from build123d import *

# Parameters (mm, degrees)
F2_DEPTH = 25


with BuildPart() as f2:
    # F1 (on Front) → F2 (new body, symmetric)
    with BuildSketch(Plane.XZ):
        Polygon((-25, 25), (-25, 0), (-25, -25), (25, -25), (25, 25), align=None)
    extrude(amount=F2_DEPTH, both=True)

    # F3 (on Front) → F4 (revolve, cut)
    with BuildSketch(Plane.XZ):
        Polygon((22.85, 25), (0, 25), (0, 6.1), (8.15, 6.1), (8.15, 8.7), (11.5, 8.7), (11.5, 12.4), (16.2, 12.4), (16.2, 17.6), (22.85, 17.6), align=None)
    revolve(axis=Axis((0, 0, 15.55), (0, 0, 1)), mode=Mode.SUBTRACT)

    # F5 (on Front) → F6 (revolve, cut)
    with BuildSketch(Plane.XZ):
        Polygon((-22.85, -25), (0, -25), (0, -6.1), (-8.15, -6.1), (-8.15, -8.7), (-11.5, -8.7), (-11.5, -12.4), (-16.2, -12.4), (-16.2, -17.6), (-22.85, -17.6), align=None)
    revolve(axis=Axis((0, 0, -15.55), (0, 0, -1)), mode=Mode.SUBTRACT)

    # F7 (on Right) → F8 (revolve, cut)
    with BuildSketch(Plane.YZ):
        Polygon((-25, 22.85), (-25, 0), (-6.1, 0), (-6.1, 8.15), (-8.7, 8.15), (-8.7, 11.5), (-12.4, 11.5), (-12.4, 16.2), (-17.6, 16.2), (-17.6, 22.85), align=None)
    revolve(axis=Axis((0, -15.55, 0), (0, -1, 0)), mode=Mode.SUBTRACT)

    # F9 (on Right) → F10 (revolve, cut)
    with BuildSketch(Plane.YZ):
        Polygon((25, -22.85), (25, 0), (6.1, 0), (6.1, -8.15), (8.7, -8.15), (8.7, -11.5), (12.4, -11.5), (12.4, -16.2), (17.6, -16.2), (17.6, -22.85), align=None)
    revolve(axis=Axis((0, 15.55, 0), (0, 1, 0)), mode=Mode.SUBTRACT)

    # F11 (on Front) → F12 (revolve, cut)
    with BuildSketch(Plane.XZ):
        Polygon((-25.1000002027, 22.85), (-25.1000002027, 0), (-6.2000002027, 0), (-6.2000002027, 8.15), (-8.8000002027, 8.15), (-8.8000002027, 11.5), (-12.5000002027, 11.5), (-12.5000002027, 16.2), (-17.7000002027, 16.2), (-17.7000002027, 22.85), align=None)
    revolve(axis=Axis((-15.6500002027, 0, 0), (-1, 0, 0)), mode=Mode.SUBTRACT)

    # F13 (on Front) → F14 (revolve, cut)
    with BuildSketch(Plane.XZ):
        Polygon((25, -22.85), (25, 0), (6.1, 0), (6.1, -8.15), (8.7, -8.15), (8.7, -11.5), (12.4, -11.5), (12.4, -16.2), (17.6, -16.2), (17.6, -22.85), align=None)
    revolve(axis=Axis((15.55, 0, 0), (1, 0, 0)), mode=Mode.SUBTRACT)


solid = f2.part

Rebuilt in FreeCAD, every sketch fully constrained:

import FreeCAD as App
import Part
import Sketcher

V = App.Vector

doc = App.newDocument("Part")
params = doc.addObject("Spreadsheet::Sheet", "Params")
for row, (alias, value) in enumerate([
    ("sketch1_width", "50 mm"),
    ("pad1_length", "50 mm"),
    ("sketch2_width", "4.7 mm"),
    ("sketch2_height", "18.9 mm"),
    ("sketch2_height2", "2.6 mm"),
    ("sketch2_height3", "3.7 mm"),
    ("sketch2_height4", "5.2 mm"),
    ("groove_angle", "360 deg"),
    ("sketch3_width", "4.7 mm"),
    ("sketch3_height", "18.9 mm"),
    ("sketch3_height2", "2.6 mm"),
    ("sketch3_height3", "3.7 mm"),
    ("sketch3_height4", "5.2 mm"),
    ("groove2_angle", "360 deg"),
    ("sketch4_width", "18.9 mm"),
    ("sketch4_width2", "2.6 mm"),
    ("sketch4_width3", "3.7 mm"),
    ("sketch4_width4", "5.2 mm"),
    ("sketch4_height", "4.7 mm"),
    ("groove3_angle", "360 deg"),
    ("sketch5_width", "18.9 mm"),
    ("sketch5_width2", "2.6 mm"),
    ("sketch5_width3", "3.7 mm"),
    ("sketch5_width4", "5.2 mm"),
    ("sketch5_height", "4.7 mm"),
    ("groove4_angle", "360 deg"),
    ("sketch6_width", "18.9 mm"),
    ("sketch6_width2", "2.6 mm"),
    ("sketch6_width3", "3.7 mm"),
    ("sketch6_width4", "5.2 mm"),
    ("sketch6_height", "4.7 mm"),
    ("groove5_angle", "360 deg"),
    ("sketch7_width", "18.9 mm"),
    ("sketch7_width2", "2.6 mm"),
    ("sketch7_width3", "3.7 mm"),
    ("sketch7_width4", "5.2 mm"),
    ("sketch7_height", "4.7 mm"),
    ("groove6_angle", "360 deg"),
], start=1):
    params.set(f"A{row}", alias)
    params.set(f"B{row}", "=" + value)
    params.setAlias(f"B{row}", alias)

body = doc.addObject("PartDesign::Body", "Body")

# Sketch on XZ plane
sketch1 = doc.addObject("Sketcher::SketchObject", "Sketch")
body.addObject(sketch1)
sketch1.AttachmentSupport = (doc.XZ_Plane, [""])
sketch1.MapMode = "FlatFace"
sketch1.addGeometry([
    Part.LineSegment(V(-25, 25, 0), V(-25, -25, 0)),
    Part.LineSegment(V(-25, -25, 0), V(25, -25, 0)),
    Part.LineSegment(V(25, -25, 0), V(25, 25, 0)),
    Part.LineSegment(V(25, 25, 0), V(-25, 25, 0)),
], False)
sketch1.addConstraint([
    Sketcher.Constraint("Coincident", 0, 2, 1, 1),
    Sketcher.Constraint("Coincident", 1, 2, 2, 1),
    Sketcher.Constraint("Coincident", 2, 2, 3, 1),
    Sketcher.Constraint("Coincident", 3, 2, 0, 1),
    Sketcher.Constraint("Vertical", 0),
    Sketcher.Constraint("Horizontal", 1),
    Sketcher.Constraint("Vertical", 2),
    Sketcher.Constraint("Horizontal", 3),
    Sketcher.Constraint("Symmetric", 0, 2, 2, 2, -1, 1),
    Sketcher.Constraint("Equal", 3, 0),
    Sketcher.Constraint("DistanceX", 1, 1, 1, 2, 50.0),
])
sketch1.setExpression("Constraints[10]", "Params.sketch1_width")
pad1 = doc.addObject("PartDesign::Pad", "Pad")
body.addObject(pad1)
pad1.Profile = sketch1
pad1.setExpression("Length", "Params.pad1_length")
pad1.Midplane = True

# Sketch on XZ plane
sketch2 = doc.addObject("Sketcher::SketchObject", "Sketch001")
body.addObject(sketch2)
sketch2.AttachmentSupport = (doc.XZ_Plane, [""])
sketch2.MapMode = "FlatFace"
sketch2.addGeometry([
    Part.LineSegment(V(22.9, 25, 0), V(0, 25, 0)),  # 0
    Part.LineSegment(V(0, 25, 0), V(0, 6.1, 0)),  # 1
    Part.LineSegment(V(0, 6.1, 0), V(8.2, 6.1, 0)),  # 2
    Part.LineSegment(V(8.2, 6.1, 0), V(8.2, 8.7, 0)),  # 3
    Part.LineSegment(V(8.2, 8.7, 0), V(11.5, 8.7, 0)),  # 4
    Part.LineSegment(V(11.5, 8.7, 0), V(11.5, 12.4, 0)),  # 5
    Part.LineSegment(V(11.5, 12.4, 0), V(16.2, 12.4, 0)),  # 6
    Part.LineSegment(V(16.2, 12.4, 0), V(16.2, 17.6, 0)),  # 7
    Part.LineSegment(V(16.2, 17.6, 0), V(22.9, 17.6, 0)),  # 8
    Part.LineSegment(V(22.9, 17.6, 0), V(22.9, 25, 0)),  # 9
], False)
sketch2.addConstraint([
    Sketcher.Constraint("Coincident", 0, 2, 1, 1),
    Sketcher.Constraint("Coincident", 1, 2, 2, 1),
    Sketcher.Constraint("Coincident", 2, 2, 3, 1),
    Sketcher.Constraint("Coincident", 3, 2, 4, 1),
    Sketcher.Constraint("Coincident", 4, 2, 5, 1),
    Sketcher.Constraint("Coincident", 5, 2, 6, 1),
    Sketcher.Constraint("Coincident", 6, 2, 7, 1),
    Sketcher.Constraint("Coincident", 7, 2, 8, 1),
    Sketcher.Constraint("Coincident", 8, 2, 9, 1),
    Sketcher.Constraint("Coincident", 9, 2, 0, 1),
    Sketcher.Constraint("Horizontal", 0),
    Sketcher.Constraint("Vertical", 1),
    Sketcher.Constraint("Horizontal", 2),
    Sketcher.Constraint("Vertical", 3),
    Sketcher.Constraint("Horizontal", 4),
    Sketcher.Constraint("Vertical", 5),
    Sketcher.Constraint("Horizontal", 6),
    Sketcher.Constraint("Vertical", 7),
    Sketcher.Constraint("Horizontal", 8),
    Sketcher.Constraint("Vertical", 9),
    Sketcher.Constraint("PointOnObject", 0, 2, -2),
    Sketcher.Constraint("DistanceX", 6, 1, 6, 2, 4.7),
    Sketcher.Constraint("DistanceY", 1, 2, 1, 1, 18.9),
    Sketcher.Constraint("DistanceY", 3, 1, 3, 2, 2.6),
    Sketcher.Constraint("DistanceY", 5, 1, 5, 2, 3.7),
    Sketcher.Constraint("DistanceY", 7, 1, 7, 2, 5.2),
    Sketcher.Constraint("DistanceY", -1, 1, 0, 2, 25.0),
    Sketcher.Constraint("DistanceX", 0, 2, 0, 1, 22.85),
    Sketcher.Constraint("DistanceX", 2, 1, 2, 2, 8.15),
    Sketcher.Constraint("DistanceX", 4, 1, 4, 2, 3.35),
])
sketch2.setExpression("Constraints[21]", "Params.sketch2_width")
sketch2.setExpression("Constraints[22]", "Params.sketch2_height")
sketch2.setExpression("Constraints[23]", "Params.sketch2_height2")
sketch2.setExpression("Constraints[24]", "Params.sketch2_height3")
sketch2.setExpression("Constraints[25]", "Params.sketch2_height4")
groove = doc.addObject("PartDesign::Groove", "Groove")
body.addObject(groove)
groove.Profile = sketch2
groove.ReferenceAxis = (sketch2, ["V_Axis"])
groove.setExpression("Angle", "Params.groove_angle")

# Sketch on XZ plane
sketch3 = doc.addObject("Sketcher::SketchObject", "Sketch002")
body.addObject(sketch3)
sketch3.AttachmentSupport = (doc.XZ_Plane, [""])
sketch3.MapMode = "FlatFace"
sketch3.addGeometry([
    Part.LineSegment(V(-22.9, -25, 0), V(0, -25, 0)),  # 0
    Part.LineSegment(V(0, -25, 0), V(0, -6.1, 0)),  # 1
    Part.LineSegment(V(0, -6.1, 0), V(-8.2, -6.1, 0)),  # 2
    Part.LineSegment(V(-8.2, -6.1, 0), V(-8.2, -8.7, 0)),  # 3
    Part.LineSegment(V(-8.2, -8.7, 0), V(-11.5, -8.7, 0)),  # 4
    Part.LineSegment(V(-11.5, -8.7, 0), V(-11.5, -12.4, 0)),  # 5
    Part.LineSegment(V(-11.5, -12.4, 0), V(-16.2, -12.4, 0)),  # 6
    Part.LineSegment(V(-16.2, -12.4, 0), V(-16.2, -17.6, 0)),  # 7
    Part.LineSegment(V(-16.2, -17.6, 0), V(-22.9, -17.6, 0)),  # 8
    Part.LineSegment(V(-22.9, -17.6, 0), V(-22.9, -25, 0)),  # 9
], False)
sketch3.addConstraint([
    Sketcher.Constraint("Coincident", 0, 2, 1, 1),
    Sketcher.Constraint("Coincident", 1, 2, 2, 1),
    Sketcher.Constraint("Coincident", 2, 2, 3, 1),
    Sketcher.Constraint("Coincident", 3, 2, 4, 1),
    Sketcher.Constraint("Coincident", 4, 2, 5, 1),
    Sketcher.Constraint("Coincident", 5, 2, 6, 1),
    Sketcher.Constraint("Coincident", 6, 2, 7, 1),
    Sketcher.Constraint("Coincident", 7, 2, 8, 1),
    Sketcher.Constraint("Coincident", 8, 2, 9, 1),
    Sketcher.Constraint("Coincident", 9, 2, 0, 1),
    Sketcher.Constraint("Horizontal", 0),
    Sketcher.Constraint("Vertical", 1),
    Sketcher.Constraint("Horizontal", 2),
    Sketcher.Constraint("Vertical", 3),
    Sketcher.Constraint("Horizontal", 4),
    Sketcher.Constraint("Vertical", 5),
    Sketcher.Constraint("Horizontal", 6),
    Sketcher.Constraint("Vertical", 7),
    Sketcher.Constraint("Horizontal", 8),
    Sketcher.Constraint("Vertical", 9),
    Sketcher.Constraint("PointOnObject", 0, 2, -2),
    Sketcher.Constraint("DistanceX", 6, 2, 6, 1, 4.7),
    Sketcher.Constraint("DistanceY", 1, 1, 1, 2, 18.9),
    Sketcher.Constraint("DistanceY", 3, 2, 3, 1, 2.6),
    Sketcher.Constraint("DistanceY", 5, 2, 5, 1, 3.7),
    Sketcher.Constraint("DistanceY", 7, 2, 7, 1, 5.2),
    Sketcher.Constraint("DistanceY", 0, 2, -1, 1, 25.0),
    Sketcher.Constraint("DistanceX", 0, 1, 0, 2, 22.85),
    Sketcher.Constraint("DistanceX", 2, 2, 2, 1, 8.15),
    Sketcher.Constraint("DistanceX", 4, 2, 4, 1, 3.35),
])
sketch3.setExpression("Constraints[21]", "Params.sketch3_width")
sketch3.setExpression("Constraints[22]", "Params.sketch3_height")
sketch3.setExpression("Constraints[23]", "Params.sketch3_height2")
sketch3.setExpression("Constraints[24]", "Params.sketch3_height3")
sketch3.setExpression("Constraints[25]", "Params.sketch3_height4")
groove2 = doc.addObject("PartDesign::Groove", "Groove001")
body.addObject(groove2)
groove2.Profile = sketch3
groove2.ReferenceAxis = (sketch3, ["V_Axis"])
groove2.setExpression("Angle", "Params.groove2_angle")

# Sketch on YZ plane
sketch4 = doc.addObject("Sketcher::SketchObject", "Sketch003")
body.addObject(sketch4)
sketch4.AttachmentSupport = (doc.YZ_Plane, [""])
sketch4.MapMode = "FlatFace"
sketch4.addGeometry([
    Part.LineSegment(V(-25, 22.9, 0), V(-25, 0, 0)),  # 0
    Part.LineSegment(V(-25, 0, 0), V(-6.1, 0, 0)),  # 1
    Part.LineSegment(V(-6.1, 0, 0), V(-6.1, 8.2, 0)),  # 2
    Part.LineSegment(V(-6.1, 8.2, 0), V(-8.7, 8.2, 0)),  # 3
    Part.LineSegment(V(-8.7, 8.2, 0), V(-8.7, 11.5, 0)),  # 4
    Part.LineSegment(V(-8.7, 11.5, 0), V(-12.4, 11.5, 0)),  # 5
    Part.LineSegment(V(-12.4, 11.5, 0), V(-12.4, 16.2, 0)),  # 6
    Part.LineSegment(V(-12.4, 16.2, 0), V(-17.6, 16.2, 0)),  # 7
    Part.LineSegment(V(-17.6, 16.2, 0), V(-17.6, 22.9, 0)),  # 8
    Part.LineSegment(V(-17.6, 22.9, 0), V(-25, 22.9, 0)),  # 9
], False)
sketch4.addConstraint([
    Sketcher.Constraint("Coincident", 0, 2, 1, 1),
    Sketcher.Constraint("Coincident", 1, 2, 2, 1),
    Sketcher.Constraint("Coincident", 2, 2, 3, 1),
    Sketcher.Constraint("Coincident", 3, 2, 4, 1),
    Sketcher.Constraint("Coincident", 4, 2, 5, 1),
    Sketcher.Constraint("Coincident", 5, 2, 6, 1),
    Sketcher.Constraint("Coincident", 6, 2, 7, 1),
    Sketcher.Constraint("Coincident", 7, 2, 8, 1),
    Sketcher.Constraint("Coincident", 8, 2, 9, 1),
    Sketcher.Constraint("Coincident", 9, 2, 0, 1),
    Sketcher.Constraint("Vertical", 0),
    Sketcher.Constraint("Horizontal", 1),
    Sketcher.Constraint("Vertical", 2),
    Sketcher.Constraint("Horizontal", 3),
    Sketcher.Constraint("Vertical", 4),
    Sketcher.Constraint("Horizontal", 5),
    Sketcher.Constraint("Vertical", 6),
    Sketcher.Constraint("Horizontal", 7),
    Sketcher.Constraint("Vertical", 8),
    Sketcher.Constraint("Horizontal", 9),
    Sketcher.Constraint("PointOnObject", 0, 2, -1),
    Sketcher.Constraint("DistanceX", 1, 1, 1, 2, 18.9),
    Sketcher.Constraint("DistanceX", 3, 2, 3, 1, 2.6),
    Sketcher.Constraint("DistanceX", 5, 2, 5, 1, 3.7),
    Sketcher.Constraint("DistanceX", 7, 2, 7, 1, 5.2),
    Sketcher.Constraint("DistanceY", 6, 1, 6, 2, 4.7),
    Sketcher.Constraint("DistanceX", 0, 2, -1, 1, 25.0),
    Sketcher.Constraint("DistanceY", 0, 2, 0, 1, 22.85),
    Sketcher.Constraint("DistanceY", 2, 1, 2, 2, 8.15),
    Sketcher.Constraint("DistanceY", 4, 1, 4, 2, 3.35),
])
sketch4.setExpression("Constraints[21]", "Params.sketch4_width")
sketch4.setExpression("Constraints[22]", "Params.sketch4_width2")
sketch4.setExpression("Constraints[23]", "Params.sketch4_width3")
sketch4.setExpression("Constraints[24]", "Params.sketch4_width4")
sketch4.setExpression("Constraints[25]", "Params.sketch4_height")
groove3 = doc.addObject("PartDesign::Groove", "Groove002")
body.addObject(groove3)
groove3.Profile = sketch4
groove3.ReferenceAxis = (sketch4, ["H_Axis"])
groove3.setExpression("Angle", "Params.groove3_angle")

# Sketch on YZ plane
sketch5 = doc.addObject("Sketcher::SketchObject", "Sketch004")
body.addObject(sketch5)
sketch5.AttachmentSupport = (doc.YZ_Plane, [""])
sketch5.MapMode = "FlatFace"
sketch5.addGeometry([
    Part.LineSegment(V(25, -22.9, 0), V(25, 0, 0)),  # 0
    Part.LineSegment(V(25, 0, 0), V(6.1, 0, 0)),  # 1
    Part.LineSegment(V(6.1, 0, 0), V(6.1, -8.2, 0)),  # 2
    Part.LineSegment(V(6.1, -8.2, 0), V(8.7, -8.2, 0)),  # 3
    Part.LineSegment(V(8.7, -8.2, 0), V(8.7, -11.5, 0)),  # 4
    Part.LineSegment(V(8.7, -11.5, 0), V(12.4, -11.5, 0)),  # 5
    Part.LineSegment(V(12.4, -11.5, 0), V(12.4, -16.2, 0)),  # 6
    Part.LineSegment(V(12.4, -16.2, 0), V(17.6, -16.2, 0)),  # 7
    Part.LineSegment(V(17.6, -16.2, 0), V(17.6, -22.9, 0)),  # 8
    Part.LineSegment(V(17.6, -22.9, 0), V(25, -22.9, 0)),  # 9
], False)
sketch5.addConstraint([
    Sketcher.Constraint("Coincident", 0, 2, 1, 1),
    Sketcher.Constraint("Coincident", 1, 2, 2, 1),
    Sketcher.Constraint("Coincident", 2, 2, 3, 1),
    Sketcher.Constraint("Coincident", 3, 2, 4, 1),
    Sketcher.Constraint("Coincident", 4, 2, 5, 1),
    Sketcher.Constraint("Coincident", 5, 2, 6, 1),
    Sketcher.Constraint("Coincident", 6, 2, 7, 1),
    Sketcher.Constraint("Coincident", 7, 2, 8, 1),
    Sketcher.Constraint("Coincident", 8, 2, 9, 1),
    Sketcher.Constraint("Coincident", 9, 2, 0, 1),
    Sketcher.Constraint("Vertical", 0),
    Sketcher.Constraint("Horizontal", 1),
    Sketcher.Constraint("Vertical", 2),
    Sketcher.Constraint("Horizontal", 3),
    Sketcher.Constraint("Vertical", 4),
    Sketcher.Constraint("Horizontal", 5),
    Sketcher.Constraint("Vertical", 6),
    Sketcher.Constraint("Horizontal", 7),
    Sketcher.Constraint("Vertical", 8),
    Sketcher.Constraint("Horizontal", 9),
    Sketcher.Constraint("PointOnObject", 0, 2, -1),
    Sketcher.Constraint("DistanceX", 1, 2, 1, 1, 18.9),
    Sketcher.Constraint("DistanceX", 3, 1, 3, 2, 2.6),
    Sketcher.Constraint("DistanceX", 5, 1, 5, 2, 3.7),
    Sketcher.Constraint("DistanceX", 7, 1, 7, 2, 5.2),
    Sketcher.Constraint("DistanceY", 6, 2, 6, 1, 4.7),
    Sketcher.Constraint("DistanceX", -1, 1, 0, 2, 25.0),
    Sketcher.Constraint("DistanceY", 0, 1, 0, 2, 22.85),
    Sketcher.Constraint("DistanceY", 2, 2, 2, 1, 8.15),
    Sketcher.Constraint("DistanceY", 4, 2, 4, 1, 3.35),
])
sketch5.setExpression("Constraints[21]", "Params.sketch5_width")
sketch5.setExpression("Constraints[22]", "Params.sketch5_width2")
sketch5.setExpression("Constraints[23]", "Params.sketch5_width3")
sketch5.setExpression("Constraints[24]", "Params.sketch5_width4")
sketch5.setExpression("Constraints[25]", "Params.sketch5_height")
groove4 = doc.addObject("PartDesign::Groove", "Groove003")
body.addObject(groove4)
groove4.Profile = sketch5
groove4.ReferenceAxis = (sketch5, ["H_Axis"])
groove4.setExpression("Angle", "Params.groove4_angle")

# Sketch on XZ plane
sketch6 = doc.addObject("Sketcher::SketchObject", "Sketch005")
body.addObject(sketch6)
sketch6.AttachmentSupport = (doc.XZ_Plane, [""])
sketch6.MapMode = "FlatFace"
sketch6.addGeometry([
    Part.LineSegment(V(-25.1, 22.9, 0), V(-25.1, 0, 0)),  # 0
    Part.LineSegment(V(-25.1, 0, 0), V(-6.2, 0, 0)),  # 1
    Part.LineSegment(V(-6.2, 0, 0), V(-6.2, 8.2, 0)),  # 2
    Part.LineSegment(V(-6.2, 8.2, 0), V(-8.8, 8.2, 0)),  # 3
    Part.LineSegment(V(-8.8, 8.2, 0), V(-8.8, 11.5, 0)),  # 4
    Part.LineSegment(V(-8.8, 11.5, 0), V(-12.5, 11.5, 0)),  # 5
    Part.LineSegment(V(-12.5, 11.5, 0), V(-12.5, 16.2, 0)),  # 6
    Part.LineSegment(V(-12.5, 16.2, 0), V(-17.7, 16.2, 0)),  # 7
    Part.LineSegment(V(-17.7, 16.2, 0), V(-17.7, 22.9, 0)),  # 8
    Part.LineSegment(V(-17.7, 22.9, 0), V(-25.1, 22.9, 0)),  # 9
], False)
sketch6.addConstraint([
    Sketcher.Constraint("Coincident", 0, 2, 1, 1),
    Sketcher.Constraint("Coincident", 1, 2, 2, 1),
    Sketcher.Constraint("Coincident", 2, 2, 3, 1),
    Sketcher.Constraint("Coincident", 3, 2, 4, 1),
    Sketcher.Constraint("Coincident", 4, 2, 5, 1),
    Sketcher.Constraint("Coincident", 5, 2, 6, 1),
    Sketcher.Constraint("Coincident", 6, 2, 7, 1),
    Sketcher.Constraint("Coincident", 7, 2, 8, 1),
    Sketcher.Constraint("Coincident", 8, 2, 9, 1),
    Sketcher.Constraint("Coincident", 9, 2, 0, 1),
    Sketcher.Constraint("Vertical", 0),
    Sketcher.Constraint("Horizontal", 1),
    Sketcher.Constraint("Vertical", 2),
    Sketcher.Constraint("Horizontal", 3),
    Sketcher.Constraint("Vertical", 4),
    Sketcher.Constraint("Horizontal", 5),
    Sketcher.Constraint("Vertical", 6),
    Sketcher.Constraint("Horizontal", 7),
    Sketcher.Constraint("Vertical", 8),
    Sketcher.Constraint("Horizontal", 9),
    Sketcher.Constraint("PointOnObject", 0, 2, -1),
    Sketcher.Constraint("DistanceX", 1, 1, 1, 2, 18.9),
    Sketcher.Constraint("DistanceX", 3, 2, 3, 1, 2.6),
    Sketcher.Constraint("DistanceX", 5, 2, 5, 1, 3.7),
    Sketcher.Constraint("DistanceX", 7, 2, 7, 1, 5.2),
    Sketcher.Constraint("DistanceY", 6, 1, 6, 2, 4.7),
    Sketcher.Constraint("DistanceY", 0, 2, 0, 1, 22.85),
    Sketcher.Constraint("DistanceY", 2, 1, 2, 2, 8.15),
    Sketcher.Constraint("DistanceY", 4, 1, 4, 2, 3.35),
    Sketcher.Constraint("DistanceX", 0, 2, -1, 1, 25.1),
])
sketch6.setExpression("Constraints[21]", "Params.sketch6_width")
sketch6.setExpression("Constraints[22]", "Params.sketch6_width2")
sketch6.setExpression("Constraints[23]", "Params.sketch6_width3")
sketch6.setExpression("Constraints[24]", "Params.sketch6_width4")
sketch6.setExpression("Constraints[25]", "Params.sketch6_height")
groove5 = doc.addObject("PartDesign::Groove", "Groove004")
body.addObject(groove5)
groove5.Profile = sketch6
groove5.ReferenceAxis = (sketch6, ["H_Axis"])
groove5.setExpression("Angle", "Params.groove5_angle")

# Sketch on XZ plane
sketch7 = doc.addObject("Sketcher::SketchObject", "Sketch006")
body.addObject(sketch7)
sketch7.AttachmentSupport = (doc.XZ_Plane, [""])
sketch7.MapMode = "FlatFace"
sketch7.addGeometry([
    Part.LineSegment(V(25, -22.9, 0), V(25, 0, 0)),  # 0
    Part.LineSegment(V(25, 0, 0), V(6.1, 0, 0)),  # 1
    Part.LineSegment(V(6.1, 0, 0), V(6.1, -8.2, 0)),  # 2
    Part.LineSegment(V(6.1, -8.2, 0), V(8.7, -8.2, 0)),  # 3
    Part.LineSegment(V(8.7, -8.2, 0), V(8.7, -11.5, 0)),  # 4
    Part.LineSegment(V(8.7, -11.5, 0), V(12.4, -11.5, 0)),  # 5
    Part.LineSegment(V(12.4, -11.5, 0), V(12.4, -16.2, 0)),  # 6
    Part.LineSegment(V(12.4, -16.2, 0), V(17.6, -16.2, 0)),  # 7
    Part.LineSegment(V(17.6, -16.2, 0), V(17.6, -22.9, 0)),  # 8
    Part.LineSegment(V(17.6, -22.9, 0), V(25, -22.9, 0)),  # 9
], False)
sketch7.addConstraint([
    Sketcher.Constraint("Coincident", 0, 2, 1, 1),
    Sketcher.Constraint("Coincident", 1, 2, 2, 1),
    Sketcher.Constraint("Coincident", 2, 2, 3, 1),
    Sketcher.Constraint("Coincident", 3, 2, 4, 1),
    Sketcher.Constraint("Coincident", 4, 2, 5, 1),
    Sketcher.Constraint("Coincident", 5, 2, 6, 1),
    Sketcher.Constraint("Coincident", 6, 2, 7, 1),
    Sketcher.Constraint("Coincident", 7, 2, 8, 1),
    Sketcher.Constraint("Coincident", 8, 2, 9, 1),
    Sketcher.Constraint("Coincident", 9, 2, 0, 1),
    Sketcher.Constraint("Vertical", 0),
    Sketcher.Constraint("Horizontal", 1),
    Sketcher.Constraint("Vertical", 2),
    Sketcher.Constraint("Horizontal", 3),
    Sketcher.Constraint("Vertical", 4),
    Sketcher.Constraint("Horizontal", 5),
    Sketcher.Constraint("Vertical", 6),
    Sketcher.Constraint("Horizontal", 7),
    Sketcher.Constraint("Vertical", 8),
    Sketcher.Constraint("Horizontal", 9),
    Sketcher.Constraint("PointOnObject", 0, 2, -1),
    Sketcher.Constraint("DistanceX", 1, 2, 1, 1, 18.9),
    Sketcher.Constraint("DistanceX", 3, 1, 3, 2, 2.6),
    Sketcher.Constraint("DistanceX", 5, 1, 5, 2, 3.7),
    Sketcher.Constraint("DistanceX", 7, 1, 7, 2, 5.2),
    Sketcher.Constraint("DistanceY", 6, 2, 6, 1, 4.7),
    Sketcher.Constraint("DistanceX", -1, 1, 0, 2, 25.0),
    Sketcher.Constraint("DistanceY", 0, 1, 0, 2, 22.85),
    Sketcher.Constraint("DistanceY", 2, 2, 2, 1, 8.15),
    Sketcher.Constraint("DistanceY", 4, 2, 4, 1, 3.35),
])
sketch7.setExpression("Constraints[21]", "Params.sketch7_width")
sketch7.setExpression("Constraints[22]", "Params.sketch7_width2")
sketch7.setExpression("Constraints[23]", "Params.sketch7_width3")
sketch7.setExpression("Constraints[24]", "Params.sketch7_width4")
sketch7.setExpression("Constraints[25]", "Params.sketch7_height")
groove6 = doc.addObject("PartDesign::Groove", "Groove005")
body.addObject(groove6)
groove6.Profile = sketch7
groove6.ReferenceAxis = (sketch7, ["H_Axis"])
groove6.setExpression("Angle", "Params.groove6_angle")

doc.recompute()
